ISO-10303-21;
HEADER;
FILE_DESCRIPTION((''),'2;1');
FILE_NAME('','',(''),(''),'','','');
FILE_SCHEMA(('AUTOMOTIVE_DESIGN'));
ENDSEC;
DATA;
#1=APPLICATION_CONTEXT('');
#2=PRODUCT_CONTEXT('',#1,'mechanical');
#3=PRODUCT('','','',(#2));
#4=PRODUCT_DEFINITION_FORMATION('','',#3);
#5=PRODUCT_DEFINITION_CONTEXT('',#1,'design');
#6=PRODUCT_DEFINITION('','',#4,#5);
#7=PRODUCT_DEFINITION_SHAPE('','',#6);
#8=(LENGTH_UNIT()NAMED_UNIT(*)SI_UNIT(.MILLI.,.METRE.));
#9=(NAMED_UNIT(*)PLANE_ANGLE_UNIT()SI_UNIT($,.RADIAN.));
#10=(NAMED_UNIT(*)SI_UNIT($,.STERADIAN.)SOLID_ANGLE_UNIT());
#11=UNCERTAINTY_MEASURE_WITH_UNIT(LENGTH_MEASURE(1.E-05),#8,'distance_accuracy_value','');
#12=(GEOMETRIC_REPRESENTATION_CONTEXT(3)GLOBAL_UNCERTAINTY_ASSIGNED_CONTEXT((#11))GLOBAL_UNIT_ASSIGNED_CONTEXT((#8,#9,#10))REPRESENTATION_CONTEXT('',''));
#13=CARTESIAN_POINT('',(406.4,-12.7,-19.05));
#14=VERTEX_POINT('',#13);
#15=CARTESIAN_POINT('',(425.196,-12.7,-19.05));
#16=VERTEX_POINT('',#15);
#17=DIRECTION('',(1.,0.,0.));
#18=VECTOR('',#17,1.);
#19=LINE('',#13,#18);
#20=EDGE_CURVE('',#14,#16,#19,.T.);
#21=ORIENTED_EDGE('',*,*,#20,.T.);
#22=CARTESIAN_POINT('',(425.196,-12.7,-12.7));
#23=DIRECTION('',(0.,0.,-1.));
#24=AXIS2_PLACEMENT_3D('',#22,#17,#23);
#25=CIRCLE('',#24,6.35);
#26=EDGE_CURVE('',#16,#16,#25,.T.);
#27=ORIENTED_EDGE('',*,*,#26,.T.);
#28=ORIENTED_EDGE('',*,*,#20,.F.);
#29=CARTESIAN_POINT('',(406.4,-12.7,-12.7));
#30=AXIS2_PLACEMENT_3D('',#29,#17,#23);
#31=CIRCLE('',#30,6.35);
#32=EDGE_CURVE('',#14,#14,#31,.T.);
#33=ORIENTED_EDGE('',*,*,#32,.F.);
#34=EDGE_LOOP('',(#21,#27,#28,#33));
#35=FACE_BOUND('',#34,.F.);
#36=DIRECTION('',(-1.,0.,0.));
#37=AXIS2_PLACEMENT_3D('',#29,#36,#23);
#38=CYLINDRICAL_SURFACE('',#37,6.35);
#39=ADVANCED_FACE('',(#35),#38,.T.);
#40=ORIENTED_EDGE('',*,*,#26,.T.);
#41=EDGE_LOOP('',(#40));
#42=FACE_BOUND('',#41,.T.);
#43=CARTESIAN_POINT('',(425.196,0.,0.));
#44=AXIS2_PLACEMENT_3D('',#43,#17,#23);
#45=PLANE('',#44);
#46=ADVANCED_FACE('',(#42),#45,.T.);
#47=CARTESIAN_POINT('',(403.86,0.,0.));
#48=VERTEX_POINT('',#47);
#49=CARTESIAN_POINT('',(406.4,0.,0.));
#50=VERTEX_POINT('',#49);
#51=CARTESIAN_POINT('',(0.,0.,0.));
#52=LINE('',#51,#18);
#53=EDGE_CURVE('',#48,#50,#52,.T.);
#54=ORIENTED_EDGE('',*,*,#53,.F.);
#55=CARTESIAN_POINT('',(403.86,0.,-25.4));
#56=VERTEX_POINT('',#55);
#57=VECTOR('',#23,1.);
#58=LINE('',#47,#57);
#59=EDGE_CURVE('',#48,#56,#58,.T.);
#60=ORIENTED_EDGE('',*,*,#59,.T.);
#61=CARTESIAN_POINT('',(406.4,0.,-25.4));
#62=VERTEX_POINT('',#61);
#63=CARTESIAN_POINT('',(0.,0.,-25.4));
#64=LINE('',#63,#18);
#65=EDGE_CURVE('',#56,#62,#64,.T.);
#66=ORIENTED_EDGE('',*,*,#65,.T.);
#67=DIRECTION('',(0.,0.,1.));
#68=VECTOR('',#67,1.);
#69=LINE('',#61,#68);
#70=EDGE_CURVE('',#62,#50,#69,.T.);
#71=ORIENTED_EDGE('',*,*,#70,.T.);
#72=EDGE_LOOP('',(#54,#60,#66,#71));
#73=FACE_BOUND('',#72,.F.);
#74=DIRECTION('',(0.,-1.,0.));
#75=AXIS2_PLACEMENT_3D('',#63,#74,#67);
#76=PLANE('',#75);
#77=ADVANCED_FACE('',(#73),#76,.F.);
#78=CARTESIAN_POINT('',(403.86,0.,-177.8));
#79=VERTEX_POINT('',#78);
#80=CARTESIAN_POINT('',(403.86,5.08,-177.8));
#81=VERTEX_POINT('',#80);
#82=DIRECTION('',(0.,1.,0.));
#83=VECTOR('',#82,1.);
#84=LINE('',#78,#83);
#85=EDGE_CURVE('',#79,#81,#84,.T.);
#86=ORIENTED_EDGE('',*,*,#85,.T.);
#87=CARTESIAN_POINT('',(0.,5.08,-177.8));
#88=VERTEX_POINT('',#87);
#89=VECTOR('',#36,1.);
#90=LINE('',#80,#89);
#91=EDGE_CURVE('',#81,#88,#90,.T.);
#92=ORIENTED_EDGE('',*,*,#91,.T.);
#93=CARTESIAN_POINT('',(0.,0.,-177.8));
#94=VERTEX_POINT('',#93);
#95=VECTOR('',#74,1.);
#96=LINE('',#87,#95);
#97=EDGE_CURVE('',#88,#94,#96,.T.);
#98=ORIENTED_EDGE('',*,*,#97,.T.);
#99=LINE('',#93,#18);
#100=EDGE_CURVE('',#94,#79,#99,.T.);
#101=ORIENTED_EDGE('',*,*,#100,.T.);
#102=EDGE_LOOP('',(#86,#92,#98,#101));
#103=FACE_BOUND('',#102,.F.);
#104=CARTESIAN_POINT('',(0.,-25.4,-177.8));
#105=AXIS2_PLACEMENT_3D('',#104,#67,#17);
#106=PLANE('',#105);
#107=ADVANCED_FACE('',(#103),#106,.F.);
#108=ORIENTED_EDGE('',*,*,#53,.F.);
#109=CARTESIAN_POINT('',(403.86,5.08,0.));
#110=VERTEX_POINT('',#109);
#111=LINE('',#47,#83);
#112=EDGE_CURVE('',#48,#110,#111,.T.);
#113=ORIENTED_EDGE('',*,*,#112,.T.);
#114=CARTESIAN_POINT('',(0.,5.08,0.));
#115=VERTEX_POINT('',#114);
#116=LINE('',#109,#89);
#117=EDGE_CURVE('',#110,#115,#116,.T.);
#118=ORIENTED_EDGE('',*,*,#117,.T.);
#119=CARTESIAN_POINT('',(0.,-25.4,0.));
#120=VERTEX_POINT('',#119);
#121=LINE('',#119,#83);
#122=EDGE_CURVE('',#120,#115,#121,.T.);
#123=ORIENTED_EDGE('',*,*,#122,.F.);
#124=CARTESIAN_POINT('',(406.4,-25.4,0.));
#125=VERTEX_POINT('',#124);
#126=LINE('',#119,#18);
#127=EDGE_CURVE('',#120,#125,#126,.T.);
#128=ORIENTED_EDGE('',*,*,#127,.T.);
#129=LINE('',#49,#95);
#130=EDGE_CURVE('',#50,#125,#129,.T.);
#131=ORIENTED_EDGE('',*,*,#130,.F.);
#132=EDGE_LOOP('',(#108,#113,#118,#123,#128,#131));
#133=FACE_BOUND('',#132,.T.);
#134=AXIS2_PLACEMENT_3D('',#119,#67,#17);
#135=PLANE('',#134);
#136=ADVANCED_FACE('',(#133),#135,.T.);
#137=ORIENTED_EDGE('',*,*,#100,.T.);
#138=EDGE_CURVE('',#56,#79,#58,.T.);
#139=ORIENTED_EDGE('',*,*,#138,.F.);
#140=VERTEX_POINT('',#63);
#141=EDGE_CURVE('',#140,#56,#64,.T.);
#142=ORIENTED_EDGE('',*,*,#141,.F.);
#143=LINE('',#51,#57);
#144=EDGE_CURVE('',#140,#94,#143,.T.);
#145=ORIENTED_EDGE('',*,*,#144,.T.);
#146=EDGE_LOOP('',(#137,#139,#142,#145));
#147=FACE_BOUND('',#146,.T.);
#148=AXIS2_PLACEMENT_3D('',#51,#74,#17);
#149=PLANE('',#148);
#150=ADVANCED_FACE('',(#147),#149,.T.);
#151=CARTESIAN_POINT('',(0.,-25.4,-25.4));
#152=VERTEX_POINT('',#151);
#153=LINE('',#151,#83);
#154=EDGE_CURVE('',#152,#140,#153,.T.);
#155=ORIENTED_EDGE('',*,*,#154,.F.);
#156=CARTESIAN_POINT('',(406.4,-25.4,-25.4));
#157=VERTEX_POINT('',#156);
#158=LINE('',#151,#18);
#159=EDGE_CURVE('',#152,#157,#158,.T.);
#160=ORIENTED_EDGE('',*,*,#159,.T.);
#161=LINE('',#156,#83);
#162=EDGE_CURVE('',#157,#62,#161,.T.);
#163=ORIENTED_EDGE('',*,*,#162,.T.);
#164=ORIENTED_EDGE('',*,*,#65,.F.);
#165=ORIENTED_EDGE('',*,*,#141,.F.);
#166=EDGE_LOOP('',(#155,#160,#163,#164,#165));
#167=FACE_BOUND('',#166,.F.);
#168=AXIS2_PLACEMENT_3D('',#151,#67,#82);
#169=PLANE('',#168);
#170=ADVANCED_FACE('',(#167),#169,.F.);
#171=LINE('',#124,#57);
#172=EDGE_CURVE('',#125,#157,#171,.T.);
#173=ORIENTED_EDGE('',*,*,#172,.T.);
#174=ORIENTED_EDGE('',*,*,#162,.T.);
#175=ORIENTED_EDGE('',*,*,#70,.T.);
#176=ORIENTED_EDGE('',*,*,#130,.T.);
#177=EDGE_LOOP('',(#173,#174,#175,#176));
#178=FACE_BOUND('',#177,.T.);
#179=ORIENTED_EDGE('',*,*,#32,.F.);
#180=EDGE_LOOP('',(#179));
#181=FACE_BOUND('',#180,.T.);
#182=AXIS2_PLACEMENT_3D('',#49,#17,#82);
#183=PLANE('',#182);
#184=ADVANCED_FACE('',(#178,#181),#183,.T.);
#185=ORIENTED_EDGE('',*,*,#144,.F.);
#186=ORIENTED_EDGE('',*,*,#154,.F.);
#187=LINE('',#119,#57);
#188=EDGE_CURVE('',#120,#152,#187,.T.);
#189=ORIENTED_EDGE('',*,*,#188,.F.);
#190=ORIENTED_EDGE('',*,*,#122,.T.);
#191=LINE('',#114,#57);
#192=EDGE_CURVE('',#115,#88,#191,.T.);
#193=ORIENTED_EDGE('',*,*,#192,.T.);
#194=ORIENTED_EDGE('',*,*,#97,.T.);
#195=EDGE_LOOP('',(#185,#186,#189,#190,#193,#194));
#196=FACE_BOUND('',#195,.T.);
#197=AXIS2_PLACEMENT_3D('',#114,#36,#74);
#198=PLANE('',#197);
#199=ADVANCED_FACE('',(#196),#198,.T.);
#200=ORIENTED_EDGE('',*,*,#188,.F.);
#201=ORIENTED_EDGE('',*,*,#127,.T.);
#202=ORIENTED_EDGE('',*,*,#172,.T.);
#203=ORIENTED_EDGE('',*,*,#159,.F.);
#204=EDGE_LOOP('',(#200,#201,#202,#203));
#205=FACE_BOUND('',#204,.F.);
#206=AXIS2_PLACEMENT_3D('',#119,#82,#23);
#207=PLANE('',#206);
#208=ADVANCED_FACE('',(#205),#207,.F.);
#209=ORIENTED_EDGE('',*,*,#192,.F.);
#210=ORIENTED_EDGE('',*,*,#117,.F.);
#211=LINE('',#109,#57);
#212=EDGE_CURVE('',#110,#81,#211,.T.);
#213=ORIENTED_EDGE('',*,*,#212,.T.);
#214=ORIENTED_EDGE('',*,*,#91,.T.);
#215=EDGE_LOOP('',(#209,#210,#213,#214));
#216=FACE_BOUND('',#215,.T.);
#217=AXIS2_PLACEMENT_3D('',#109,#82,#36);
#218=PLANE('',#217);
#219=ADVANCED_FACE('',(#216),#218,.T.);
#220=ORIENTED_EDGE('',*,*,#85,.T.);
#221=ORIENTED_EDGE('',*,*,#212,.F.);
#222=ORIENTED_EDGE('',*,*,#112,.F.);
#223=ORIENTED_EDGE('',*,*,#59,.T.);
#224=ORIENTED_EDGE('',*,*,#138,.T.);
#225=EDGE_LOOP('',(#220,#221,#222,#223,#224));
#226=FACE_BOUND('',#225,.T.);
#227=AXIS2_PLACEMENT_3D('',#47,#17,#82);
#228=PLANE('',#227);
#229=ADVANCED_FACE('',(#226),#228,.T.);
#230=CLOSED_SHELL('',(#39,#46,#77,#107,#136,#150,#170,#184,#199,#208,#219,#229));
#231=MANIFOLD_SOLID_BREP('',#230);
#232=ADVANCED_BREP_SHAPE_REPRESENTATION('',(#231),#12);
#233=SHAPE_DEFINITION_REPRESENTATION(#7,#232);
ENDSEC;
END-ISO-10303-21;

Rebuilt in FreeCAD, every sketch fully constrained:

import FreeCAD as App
import Part
import Sketcher

V = App.Vector
Q = App.Units.Quantity

doc = App.newDocument("Part")
params = doc.addObject("Spreadsheet::Sheet", "Params")
for row, (alias, value) in enumerate([
    ("sketch1_width", "1 in"),
    ("pad1_length", "16 in"),
    ("sketch2_diameter", "0.5 in"),
    ("pad2_length", "0.74 in"),
    ("sketch3_diameter", "0.5 in"),
    ("pad3_length", "0.75 in"),
    ("sketch4_width", "15.9 in"),
    ("sketch4_height", "0.2 in"),
    ("pad4_length", "7 in"),
], start=1):
    params.set(f"A{row}", alias)
    params.set(f"B{row}", "=" + value)
    params.setAlias(f"B{row}", alias)

body = doc.addObject("PartDesign::Body", "Body")

sketch1 = body.newObject("Sketcher::SketchObject", "Sketch")
sketch1.AttachmentSupport = (doc.getObject("YZ_Plane"), [""])
sketch1.MapMode = "FlatFace"
sketch1.addGeometry(Part.LineSegment(V(0, -25, 0), V(0, 0, 0)), False)
sketch1.addGeometry(Part.LineSegment(V(0, 0, 0), V(-25, 0, 0)), False)
sketch1.addGeometry(Part.LineSegment(V(-25, 0, 0), V(-25, -25, 0)), False)
sketch1.addGeometry(Part.LineSegment(V(-25, -25, 0), V(0, -25, 0)), False)
sketch1.addConstraint(Sketcher.Constraint("Coincident", 0, 2, 1, 1))
sketch1.addConstraint(Sketcher.Constraint("Coincident", 1, 2, 2, 1))
sketch1.addConstraint(Sketcher.Constraint("Coincident", 2, 2, 3, 1))
sketch1.addConstraint(Sketcher.Constraint("Coincident", 3, 2, 0, 1))
sketch1.addConstraint(Sketcher.Constraint("Vertical", 0))
sketch1.addConstraint(Sketcher.Constraint("Horizontal", 1))
sketch1.addConstraint(Sketcher.Constraint("Vertical", 2))
sketch1.addConstraint(Sketcher.Constraint("Horizontal", 3))
sketch1.addConstraint(Sketcher.Constraint("Coincident", 0, 2, -1, 1))
sketch1.addConstraint(Sketcher.Constraint("Equal", 3, 0))
sketch1.addConstraint(Sketcher.Constraint("DistanceX", 1, 2, 1, 1, Q("1 in")))
sketch1.setExpression("Constraints[10]", "Params.sketch1_width")
pad1 = body.newObject("PartDesign::Pad", "Pad")
pad1.Profile = sketch1
pad1.setExpression("Length", "Params.pad1_length")

sketch2 = body.newObject("Sketcher::SketchObject", "Sketch001")
sketch2.AttachmentSupport = (doc.getObject("YZ_Plane"), [""])
sketch2.MapMode = "FlatFace"
sketch2.AttachmentOffset = App.Placement(V(0, 0, 16 * 25.4), App.Rotation())
sketch2.addGeometry(Part.Circle(V(-13, -13, 0), V(0, 0, 1), 6), False)
sketch2.addConstraint(Sketcher.Constraint("Diameter", 0, Q("0.5 in")))
sketch2.addConstraint(Sketcher.Constraint("DistanceX", 0, 3, -1, 1, Q("0.5 in")))
sketch2.addConstraint(Sketcher.Constraint("DistanceY", 0, 3, -1, 1, Q("0.5 in")))
sketch2.setExpression("Constraints[0]", "Params.sketch2_diameter")
pad2 = body.newObject("PartDesign::Pad", "Pad001")
pad2.Profile = sketch2
pad2.setExpression("Length", "Params.pad2_length")

sketch3 = body.newObject("Sketcher::SketchObject", "Sketch002")
sketch3.AttachmentSupport = (doc.getObject("YZ_Plane"), [""])
sketch3.MapMode = "FlatFace"
sketch3.addGeometry(Part.Circle(V(-13, -13, 0), V(0, 0, 1), 6), False)
sketch3.addConstraint(Sketcher.Constraint("Diameter", 0, Q("0.5 in")))
sketch3.addConstraint(Sketcher.Constraint("DistanceX", 0, 3, -1, 1, Q("0.5 in")))
sketch3.addConstraint(Sketcher.Constraint("DistanceY", 0, 3, -1, 1, Q("0.5 in")))
sketch3.setExpression("Constraints[0]", "Params.sketch3_diameter")
pad3 = body.newObject("PartDesign::Pad", "Pad002")
pad3.Profile = sketch3
pad3.setExpression("Length", "Params.pad3_length")

sketch4 = body.newObject("Sketcher::SketchObject", "Sketch003")
sketch4.AttachmentSupport = (doc.getObject("XY_Plane"), [""])
sketch4.MapMode = "FlatFace"
sketch4.addGeometry(Part.LineSegment(V(0, 5, 0), V(0, 0, 0)), False)
sketch4.addGeometry(Part.LineSegment(V(0, 0, 0), V(404, 0, 0)), False)
sketch4.addGeometry(Part.LineSegment(V(404, 0, 0), V(404, 5, 0)), False)
sketch4.addGeometry(Part.LineSegment(V(404, 5, 0), V(0, 5, 0)), False)
sketch4.addConstraint(Sketcher.Constraint("Coincident", 0, 2, 1, 1))
sketch4.addConstraint(Sketcher.Constraint("Coincident", 1, 2, 2, 1))
sketch4.addConstraint(Sketcher.Constraint("Coincident", 2, 2, 3, 1))
sketch4.addConstraint(Sketcher.Constraint("Coincident", 3, 2, 0, 1))
sketch4.addConstraint(Sketcher.Constraint("Vertical", 0))
sketch4.addConstraint(Sketcher.Constraint("Horizontal", 1))
sketch4.addConstraint(Sketcher.Constraint("Vertical", 2))
sketch4.addConstraint(Sketcher.Constraint("Horizontal", 3))
sketch4.addConstraint(Sketcher.Constraint("Coincident", 0, 2, -1, 1))
sketch4.addConstraint(Sketcher.Constraint("DistanceX", 1, 1, 1, 2, Q("15.9 in")))
sketch4.addConstraint(Sketcher.Constraint("DistanceY", 0, 2, 0, 1, Q("0.2 in")))
sketch4.setExpression("Constraints[9]", "Params.sketch4_width")
sketch4.setExpression("Constraints[10]", "Params.sketch4_height")
pad4 = body.newObject("PartDesign::Pad", "Pad003")
pad4.Profile = sketch4
pad4.setExpression("Length", "Params.pad4_length")
pad4.Reversed = True

doc.recompute()
